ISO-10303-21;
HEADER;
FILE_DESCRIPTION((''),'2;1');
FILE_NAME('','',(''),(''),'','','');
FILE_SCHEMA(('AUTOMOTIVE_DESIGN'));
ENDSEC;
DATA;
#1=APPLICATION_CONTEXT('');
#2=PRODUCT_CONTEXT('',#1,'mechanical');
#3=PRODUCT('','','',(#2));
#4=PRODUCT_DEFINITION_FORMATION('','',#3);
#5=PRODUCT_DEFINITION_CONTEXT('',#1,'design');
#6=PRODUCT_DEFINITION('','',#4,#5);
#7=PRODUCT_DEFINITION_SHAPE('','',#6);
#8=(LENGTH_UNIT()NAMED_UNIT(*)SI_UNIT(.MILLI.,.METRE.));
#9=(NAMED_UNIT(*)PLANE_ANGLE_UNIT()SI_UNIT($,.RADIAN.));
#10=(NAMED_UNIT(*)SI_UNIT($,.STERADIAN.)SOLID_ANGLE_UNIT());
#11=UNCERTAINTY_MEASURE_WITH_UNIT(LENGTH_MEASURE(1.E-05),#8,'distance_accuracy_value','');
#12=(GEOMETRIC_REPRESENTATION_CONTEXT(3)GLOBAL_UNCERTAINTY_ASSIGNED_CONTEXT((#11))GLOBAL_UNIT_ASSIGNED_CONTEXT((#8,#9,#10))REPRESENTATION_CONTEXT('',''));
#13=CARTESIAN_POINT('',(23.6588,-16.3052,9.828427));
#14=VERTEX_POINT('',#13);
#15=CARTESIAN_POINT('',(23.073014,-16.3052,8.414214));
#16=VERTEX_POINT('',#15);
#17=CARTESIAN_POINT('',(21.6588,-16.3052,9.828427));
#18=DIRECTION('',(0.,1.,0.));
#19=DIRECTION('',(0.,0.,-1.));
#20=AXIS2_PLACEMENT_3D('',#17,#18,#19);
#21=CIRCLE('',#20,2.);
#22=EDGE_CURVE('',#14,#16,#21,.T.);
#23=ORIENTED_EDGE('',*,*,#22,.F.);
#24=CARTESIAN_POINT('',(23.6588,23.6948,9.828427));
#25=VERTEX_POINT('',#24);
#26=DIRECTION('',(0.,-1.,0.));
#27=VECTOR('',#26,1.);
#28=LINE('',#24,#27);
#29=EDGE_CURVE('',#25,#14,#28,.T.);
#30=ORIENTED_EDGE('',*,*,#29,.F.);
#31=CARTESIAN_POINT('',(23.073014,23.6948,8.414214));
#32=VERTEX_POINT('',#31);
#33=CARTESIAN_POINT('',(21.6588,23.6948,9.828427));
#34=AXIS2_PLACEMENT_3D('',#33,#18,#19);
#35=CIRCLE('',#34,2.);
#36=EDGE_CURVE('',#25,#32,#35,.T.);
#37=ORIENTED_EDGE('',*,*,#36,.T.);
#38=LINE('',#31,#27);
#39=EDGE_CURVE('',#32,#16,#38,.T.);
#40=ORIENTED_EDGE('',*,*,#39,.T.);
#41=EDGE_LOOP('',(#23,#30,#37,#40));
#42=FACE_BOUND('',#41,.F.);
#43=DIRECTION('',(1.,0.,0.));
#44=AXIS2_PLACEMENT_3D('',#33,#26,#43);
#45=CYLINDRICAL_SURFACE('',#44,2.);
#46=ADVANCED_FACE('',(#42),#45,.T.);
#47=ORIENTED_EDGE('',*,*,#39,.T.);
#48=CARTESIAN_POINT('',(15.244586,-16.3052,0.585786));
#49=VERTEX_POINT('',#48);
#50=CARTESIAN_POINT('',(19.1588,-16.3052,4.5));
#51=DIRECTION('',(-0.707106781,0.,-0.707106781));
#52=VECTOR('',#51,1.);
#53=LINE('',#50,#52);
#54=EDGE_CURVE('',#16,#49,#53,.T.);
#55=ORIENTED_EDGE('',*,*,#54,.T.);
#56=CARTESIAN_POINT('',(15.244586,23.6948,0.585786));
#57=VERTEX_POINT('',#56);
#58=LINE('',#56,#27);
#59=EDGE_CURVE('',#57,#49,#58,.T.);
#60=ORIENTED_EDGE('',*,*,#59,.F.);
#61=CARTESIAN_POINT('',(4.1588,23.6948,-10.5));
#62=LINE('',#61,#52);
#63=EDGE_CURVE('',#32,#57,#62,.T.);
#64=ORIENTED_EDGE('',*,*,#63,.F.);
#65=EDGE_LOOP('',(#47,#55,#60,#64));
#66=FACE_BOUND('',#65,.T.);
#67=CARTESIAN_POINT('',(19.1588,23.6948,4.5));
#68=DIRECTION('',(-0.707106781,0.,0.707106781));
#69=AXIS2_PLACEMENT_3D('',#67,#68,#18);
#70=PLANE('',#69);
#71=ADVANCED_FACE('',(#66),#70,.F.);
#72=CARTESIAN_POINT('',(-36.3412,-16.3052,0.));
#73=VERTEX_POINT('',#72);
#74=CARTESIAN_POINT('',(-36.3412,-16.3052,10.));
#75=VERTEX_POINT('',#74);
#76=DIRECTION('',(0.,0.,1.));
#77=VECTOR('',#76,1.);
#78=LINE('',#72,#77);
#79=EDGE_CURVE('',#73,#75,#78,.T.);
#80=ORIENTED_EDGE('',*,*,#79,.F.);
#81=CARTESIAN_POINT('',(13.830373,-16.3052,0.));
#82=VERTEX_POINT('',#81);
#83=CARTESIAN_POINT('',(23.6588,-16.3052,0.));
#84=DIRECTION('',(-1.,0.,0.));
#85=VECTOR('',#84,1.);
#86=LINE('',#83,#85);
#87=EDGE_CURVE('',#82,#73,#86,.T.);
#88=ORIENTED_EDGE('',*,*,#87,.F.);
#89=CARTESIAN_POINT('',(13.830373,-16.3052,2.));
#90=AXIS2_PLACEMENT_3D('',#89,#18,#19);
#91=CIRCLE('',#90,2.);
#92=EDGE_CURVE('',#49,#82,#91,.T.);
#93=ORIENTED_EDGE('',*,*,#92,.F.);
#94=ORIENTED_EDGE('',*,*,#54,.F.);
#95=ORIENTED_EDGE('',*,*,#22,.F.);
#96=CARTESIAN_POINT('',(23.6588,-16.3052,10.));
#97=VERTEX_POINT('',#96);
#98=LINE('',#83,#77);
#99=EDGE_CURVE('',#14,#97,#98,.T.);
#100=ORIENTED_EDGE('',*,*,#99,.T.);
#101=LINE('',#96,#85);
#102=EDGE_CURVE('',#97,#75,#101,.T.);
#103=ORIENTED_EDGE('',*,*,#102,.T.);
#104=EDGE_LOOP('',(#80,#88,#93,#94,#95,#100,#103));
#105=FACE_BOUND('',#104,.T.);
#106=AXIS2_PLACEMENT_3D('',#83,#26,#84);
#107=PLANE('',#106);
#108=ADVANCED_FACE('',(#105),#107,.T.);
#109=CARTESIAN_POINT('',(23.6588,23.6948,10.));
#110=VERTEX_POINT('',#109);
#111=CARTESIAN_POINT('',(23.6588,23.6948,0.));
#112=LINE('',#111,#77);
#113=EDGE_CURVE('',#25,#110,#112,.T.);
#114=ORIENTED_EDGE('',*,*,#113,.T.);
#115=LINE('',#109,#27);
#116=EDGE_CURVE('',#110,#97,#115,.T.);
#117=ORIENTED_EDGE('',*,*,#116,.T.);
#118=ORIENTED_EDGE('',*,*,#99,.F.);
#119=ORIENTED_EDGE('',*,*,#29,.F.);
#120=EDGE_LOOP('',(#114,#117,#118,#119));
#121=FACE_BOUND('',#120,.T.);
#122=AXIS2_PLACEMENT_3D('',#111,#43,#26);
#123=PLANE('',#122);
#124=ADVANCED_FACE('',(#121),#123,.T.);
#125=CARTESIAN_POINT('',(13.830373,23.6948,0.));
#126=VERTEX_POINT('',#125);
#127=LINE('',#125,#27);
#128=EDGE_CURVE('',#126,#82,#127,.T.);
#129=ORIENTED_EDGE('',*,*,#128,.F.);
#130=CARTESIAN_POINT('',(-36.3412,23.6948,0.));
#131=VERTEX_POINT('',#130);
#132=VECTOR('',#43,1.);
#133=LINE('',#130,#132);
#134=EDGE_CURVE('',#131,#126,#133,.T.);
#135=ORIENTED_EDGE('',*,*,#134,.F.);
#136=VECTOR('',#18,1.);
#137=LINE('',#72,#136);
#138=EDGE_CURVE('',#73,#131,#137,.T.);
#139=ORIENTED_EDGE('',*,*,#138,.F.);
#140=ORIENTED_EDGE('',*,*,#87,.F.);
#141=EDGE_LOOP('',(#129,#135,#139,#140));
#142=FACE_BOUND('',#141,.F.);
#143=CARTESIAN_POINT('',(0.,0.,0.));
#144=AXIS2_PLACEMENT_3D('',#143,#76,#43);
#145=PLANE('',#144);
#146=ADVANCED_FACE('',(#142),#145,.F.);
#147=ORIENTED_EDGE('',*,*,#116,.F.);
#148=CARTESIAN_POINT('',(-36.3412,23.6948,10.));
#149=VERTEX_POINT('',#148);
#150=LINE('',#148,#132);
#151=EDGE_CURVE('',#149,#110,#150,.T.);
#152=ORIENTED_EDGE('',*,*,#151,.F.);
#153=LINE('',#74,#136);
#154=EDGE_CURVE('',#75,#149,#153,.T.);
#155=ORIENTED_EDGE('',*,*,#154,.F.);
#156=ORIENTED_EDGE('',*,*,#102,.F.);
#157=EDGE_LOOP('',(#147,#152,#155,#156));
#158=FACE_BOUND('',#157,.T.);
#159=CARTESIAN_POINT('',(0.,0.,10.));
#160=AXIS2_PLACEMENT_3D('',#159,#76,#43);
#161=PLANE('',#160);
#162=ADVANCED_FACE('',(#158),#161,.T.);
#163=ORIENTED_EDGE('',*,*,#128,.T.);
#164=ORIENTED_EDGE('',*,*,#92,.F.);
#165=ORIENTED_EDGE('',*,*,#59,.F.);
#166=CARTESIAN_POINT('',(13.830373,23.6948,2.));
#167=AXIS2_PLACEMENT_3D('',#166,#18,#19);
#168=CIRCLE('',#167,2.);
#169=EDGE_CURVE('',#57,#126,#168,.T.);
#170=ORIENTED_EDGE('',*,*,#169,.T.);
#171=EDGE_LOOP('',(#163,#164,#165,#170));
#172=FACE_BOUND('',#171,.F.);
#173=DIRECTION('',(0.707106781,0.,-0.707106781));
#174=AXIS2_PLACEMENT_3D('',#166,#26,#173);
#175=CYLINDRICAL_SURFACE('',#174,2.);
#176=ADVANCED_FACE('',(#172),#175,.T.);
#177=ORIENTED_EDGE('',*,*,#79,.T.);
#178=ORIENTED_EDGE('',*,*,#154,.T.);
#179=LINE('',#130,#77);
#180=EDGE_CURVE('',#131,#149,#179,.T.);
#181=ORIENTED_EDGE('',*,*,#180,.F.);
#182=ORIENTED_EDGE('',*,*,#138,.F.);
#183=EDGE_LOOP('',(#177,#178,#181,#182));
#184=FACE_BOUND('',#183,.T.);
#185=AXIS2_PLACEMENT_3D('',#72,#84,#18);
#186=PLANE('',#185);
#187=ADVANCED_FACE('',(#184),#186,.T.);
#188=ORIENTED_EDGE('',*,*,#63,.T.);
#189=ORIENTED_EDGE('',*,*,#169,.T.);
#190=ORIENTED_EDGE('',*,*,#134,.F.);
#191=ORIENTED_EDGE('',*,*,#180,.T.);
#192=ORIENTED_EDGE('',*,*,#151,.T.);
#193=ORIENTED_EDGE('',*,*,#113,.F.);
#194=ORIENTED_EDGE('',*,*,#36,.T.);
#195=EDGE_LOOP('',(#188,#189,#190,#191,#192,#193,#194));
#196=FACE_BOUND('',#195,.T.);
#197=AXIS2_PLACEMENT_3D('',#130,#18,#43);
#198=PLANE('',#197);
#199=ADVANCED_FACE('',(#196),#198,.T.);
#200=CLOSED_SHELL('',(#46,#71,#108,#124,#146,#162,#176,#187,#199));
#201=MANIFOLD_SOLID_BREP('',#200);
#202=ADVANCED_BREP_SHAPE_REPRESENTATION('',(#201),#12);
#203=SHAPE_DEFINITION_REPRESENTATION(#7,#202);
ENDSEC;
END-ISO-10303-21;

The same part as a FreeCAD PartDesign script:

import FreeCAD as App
import Part
import Sketcher
Q = App.Units.Quantity


def edges_at(feature, points):
    """Names of the edges that pass closest to the given points."""
    edges = feature.Shape.Edges
    near = lambda p: min(range(len(edges)), key=lambda i: edges[i].distToShape(Part.Vertex(*p))[0])
    return sorted({f"Edge{near(p) + 1}" for p in points})

doc = App.newDocument("Part")
params = doc.addObject("Spreadsheet::Sheet", "Params")
for row, (alias, value) in enumerate([
    ("sketch1_width", "60 mm"),
    ("sketch1_height", "40 mm"),
    ("pad1_length", "10 mm"),
    ("chamfer_size", "9 mm"),
    ("fillet_radius", "2 mm"),
], start=1):
    params.set(f"A{row}", alias)
    params.set(f"B{row}", "=" + value)
    params.setAlias(f"B{row}", alias)

body = doc.addObject("PartDesign::Body", "Body")

# Sketch on XY plane
sketch1 = body.newObject("Sketcher::SketchObject", "Sketch")
sketch1.AttachmentSupport = (doc.getObject("XY_Plane"), [""])
sketch1.MapMode = "FlatFace"
sketch1.addGeometry([
    Part.LineSegment(App.Vector(24, 24, 0), App.Vector(-36, 24, 0)),
    Part.LineSegment(App.Vector(-36, 24, 0), App.Vector(-36, -16, 0)),
    Part.LineSegment(App.Vector(-36, -16, 0), App.Vector(24, -16, 0)),
    Part.LineSegment(App.Vector(24, -16, 0), App.Vector(24, 24, 0)),
], False)
sketch1.addConstraint([
    Sketcher.Constraint("Coincident", 0, 2, 1, 1),
    Sketcher.Constraint("Coincident", 1, 2, 2, 1),
    Sketcher.Constraint("Coincident", 2, 2, 3, 1),
    Sketcher.Constraint("Coincident", 3, 2, 0, 1),
    Sketcher.Constraint("Horizontal", 0),
    Sketcher.Constraint("Vertical", 1),
    Sketcher.Constraint("Horizontal", 2),
    Sketcher.Constraint("Vertical", 3),
    Sketcher.Constraint("DistanceX", 0, 2, 0, 1, Q("60 mm")),
    Sketcher.Constraint("DistanceY", 1, 2, 1, 1, Q("40 mm")),
    Sketcher.Constraint("DistanceX", 0, 2, -1, 1, Q("36.3412 mm")),
    Sketcher.Constraint("DistanceY", -1, 1, 0, 2, Q("23.6948 mm")),
])
sketch1.setExpression("Constraints[8]", "Params.sketch1_width")
sketch1.setExpression("Constraints[9]", "Params.sketch1_height")
pad1 = body.newObject("PartDesign::Pad", "Pad")
pad1.Profile = sketch1
pad1.setExpression("Length", "Params.pad1_length")
doc.recompute()

chamfer = body.newObject("PartDesign::Chamfer", "Chamfer")
chamfer.Base = (pad1, edges_at(pad1, [(23.659, 3.695, 0)]))
chamfer.setExpression("Size", "Params.chamfer_size")
doc.recompute()

fillet = body.newObject("PartDesign::Fillet", "Fillet")
fillet.Base = (chamfer, edges_at(chamfer, [(23.659, 3.695, 9), (14.659, 3.695, 0)]))
fillet.setExpression("Radius", "Params.fillet_radius")

doc.recompute()
